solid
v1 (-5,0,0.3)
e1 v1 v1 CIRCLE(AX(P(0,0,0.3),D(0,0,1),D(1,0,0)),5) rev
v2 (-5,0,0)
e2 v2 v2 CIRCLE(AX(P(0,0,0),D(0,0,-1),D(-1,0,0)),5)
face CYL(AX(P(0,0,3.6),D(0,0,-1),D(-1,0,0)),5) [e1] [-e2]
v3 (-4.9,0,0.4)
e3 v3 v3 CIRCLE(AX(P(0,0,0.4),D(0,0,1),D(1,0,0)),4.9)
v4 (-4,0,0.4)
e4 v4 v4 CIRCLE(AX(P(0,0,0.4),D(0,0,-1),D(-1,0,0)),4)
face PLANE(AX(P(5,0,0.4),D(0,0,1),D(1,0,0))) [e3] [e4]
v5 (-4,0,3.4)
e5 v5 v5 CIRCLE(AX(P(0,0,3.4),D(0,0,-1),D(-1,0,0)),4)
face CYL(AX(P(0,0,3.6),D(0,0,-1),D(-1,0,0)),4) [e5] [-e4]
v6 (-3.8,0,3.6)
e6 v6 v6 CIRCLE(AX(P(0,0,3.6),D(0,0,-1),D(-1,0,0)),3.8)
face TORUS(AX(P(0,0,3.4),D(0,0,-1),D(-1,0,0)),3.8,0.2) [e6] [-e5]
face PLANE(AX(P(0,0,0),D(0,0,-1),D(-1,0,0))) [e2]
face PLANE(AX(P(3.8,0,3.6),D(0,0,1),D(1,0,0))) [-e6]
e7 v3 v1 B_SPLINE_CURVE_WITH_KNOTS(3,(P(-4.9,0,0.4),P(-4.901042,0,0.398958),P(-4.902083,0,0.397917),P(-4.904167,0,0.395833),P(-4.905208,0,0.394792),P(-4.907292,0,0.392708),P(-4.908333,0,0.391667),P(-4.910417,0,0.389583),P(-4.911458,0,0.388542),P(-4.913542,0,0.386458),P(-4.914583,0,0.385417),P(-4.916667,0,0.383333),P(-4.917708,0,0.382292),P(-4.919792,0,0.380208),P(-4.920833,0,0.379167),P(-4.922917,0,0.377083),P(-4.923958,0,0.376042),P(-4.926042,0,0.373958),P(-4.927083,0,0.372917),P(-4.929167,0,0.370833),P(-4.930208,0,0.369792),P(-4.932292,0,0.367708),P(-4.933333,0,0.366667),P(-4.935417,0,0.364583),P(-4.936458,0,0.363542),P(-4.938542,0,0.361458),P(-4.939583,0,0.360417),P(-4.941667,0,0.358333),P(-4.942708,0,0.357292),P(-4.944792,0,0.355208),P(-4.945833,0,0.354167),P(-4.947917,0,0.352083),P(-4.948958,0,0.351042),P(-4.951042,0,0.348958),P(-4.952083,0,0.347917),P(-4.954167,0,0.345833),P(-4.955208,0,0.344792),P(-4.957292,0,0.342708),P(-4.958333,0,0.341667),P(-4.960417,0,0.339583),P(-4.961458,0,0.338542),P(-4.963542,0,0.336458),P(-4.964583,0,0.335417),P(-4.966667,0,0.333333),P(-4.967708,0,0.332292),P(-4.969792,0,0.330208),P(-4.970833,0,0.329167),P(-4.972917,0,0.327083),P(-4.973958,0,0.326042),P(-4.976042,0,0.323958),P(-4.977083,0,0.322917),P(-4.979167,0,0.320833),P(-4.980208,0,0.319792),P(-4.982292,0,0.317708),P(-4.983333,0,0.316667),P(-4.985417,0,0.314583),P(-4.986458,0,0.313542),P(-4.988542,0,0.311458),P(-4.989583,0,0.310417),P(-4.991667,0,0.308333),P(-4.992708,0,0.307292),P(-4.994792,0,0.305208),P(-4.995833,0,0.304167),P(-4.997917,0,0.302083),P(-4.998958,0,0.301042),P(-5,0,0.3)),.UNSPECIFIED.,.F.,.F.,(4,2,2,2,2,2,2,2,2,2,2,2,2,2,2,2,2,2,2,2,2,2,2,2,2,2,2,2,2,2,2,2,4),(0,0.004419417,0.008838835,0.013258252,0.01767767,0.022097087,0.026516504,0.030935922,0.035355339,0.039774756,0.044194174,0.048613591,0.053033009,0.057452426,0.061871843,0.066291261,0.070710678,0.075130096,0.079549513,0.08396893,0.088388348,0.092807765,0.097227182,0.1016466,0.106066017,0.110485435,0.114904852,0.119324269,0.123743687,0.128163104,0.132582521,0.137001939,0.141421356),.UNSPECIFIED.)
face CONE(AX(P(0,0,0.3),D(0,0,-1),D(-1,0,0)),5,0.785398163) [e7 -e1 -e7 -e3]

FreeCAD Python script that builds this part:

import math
import FreeCAD as App
import Part
import Sketcher

V = App.Vector
Q = App.Units.Quantity


def edges_at(feature, points):
    """Names of the edges that pass closest to the given points."""
    edges = feature.Shape.Edges
    near = lambda p: min(range(len(edges)), key=lambda i: edges[i].distToShape(Part.Vertex(*p))[0])
    return sorted({f"Edge{near(p) + 1}" for p in points})

doc = App.newDocument("Part")
params = doc.addObject("Spreadsheet::Sheet", "Params")
for row, (alias, value) in enumerate([
    ("sketch1_radius", "0.2 mm"),
    ("sketch1_width", "5 mm"),
    ("sketch1_width2", "1 mm"),
    ("sketch1_height", "3 mm"),
    ("sketch1_height2", "3.6 mm"),
    ("revolution_angle", "360 deg"),
    ("chamfer_size", "0.1 mm"),
], start=1):
    params.set(f"A{row}", alias)
    params.set(f"B{row}", "=" + value)
    params.setAlias(f"B{row}", alias)

body = doc.addObject("PartDesign::Body", "Body")

# Sketch on XZ plane
sketch1 = body.newObject("Sketcher::SketchObject", "Sketch")
sketch1.AttachmentSupport = (doc.getObject("XZ_Plane"), [""])
sketch1.MapMode = "FlatFace"
sketch1.addGeometry([
    Part.LineSegment(V(3.8, 3.6, 0), V(0, 3.6, 0)),  # 0
    Part.LineSegment(V(0, 3.6, 0), V(0, 0, 0)),  # 1
    Part.LineSegment(V(0, 0, 0), V(5, 0, 0)),  # 2
    Part.LineSegment(V(5, 0, 0), V(5, 0.4, 0)),  # 3
    Part.LineSegment(V(5, 0.4, 0), V(4, 0.4, 0)),  # 4
    Part.LineSegment(V(4, 0.4, 0), V(4, 3.4, 0)),  # 5
    Part.ArcOfCircle(Part.Circle(V(3.8, 3.4, 0), V(0, 0, 1), 0.2), math.radians(0), math.radians(90)),  # 6
], False)
sketch1.addConstraint([
    Sketcher.Constraint("Coincident", 0, 2, 1, 1),
    Sketcher.Constraint("Coincident", 1, 2, 2, 1),
    Sketcher.Constraint("Coincident", 2, 2, 3, 1),
    Sketcher.Constraint("Coincident", 3, 2, 4, 1),
    Sketcher.Constraint("Coincident", 4, 2, 5, 1),
    Sketcher.Constraint("Tangent", 5, 2, 6, 1),
    Sketcher.Constraint("Tangent", 6, 2, 0, 1),
    Sketcher.Constraint("Horizontal", 0),
    Sketcher.Constraint("Vertical", 1),
    Sketcher.Constraint("Horizontal", 2),
    Sketcher.Constraint("Vertical", 3),
    Sketcher.Constraint("Horizontal", 4),
    Sketcher.Constraint("Vertical", 5),
    Sketcher.Constraint("Coincident", 1, 2, -1, 1),
    Sketcher.Constraint("Radius", 6, Q("0.2 mm")),
    Sketcher.Constraint("DistanceX", 2, 1, 2, 2, Q("5 mm")),
    Sketcher.Constraint("DistanceX", 4, 2, 4, 1, Q("1 mm")),
    Sketcher.Constraint("DistanceY", 5, 1, 5, 2, Q("3 mm")),
    Sketcher.Constraint("DistanceY", 1, 2, 1, 1, Q("3.6 mm")),
])
sketch1.setExpression("Constraints[14]", "Params.sketch1_radius")
sketch1.setExpression("Constraints[15]", "Params.sketch1_width")
sketch1.setExpression("Constraints[16]", "Params.sketch1_width2")
sketch1.setExpression("Constraints[17]", "Params.sketch1_height")
sketch1.setExpression("Constraints[18]", "Params.sketch1_height2")
revolution = body.newObject("PartDesign::Revolution", "Revolution")
revolution.Profile = sketch1
revolution.ReferenceAxis = (sketch1, ["V_Axis"])
revolution.setExpression("Angle", "Params.revolution_angle")
doc.recompute()

chamfer = body.newObject("PartDesign::Chamfer", "Chamfer")
chamfer.Base = (revolution, edges_at(revolution, [(5, 0, 0.4)]))
chamfer.setExpression("Size", "Params.chamfer_size")

doc.recompute()
